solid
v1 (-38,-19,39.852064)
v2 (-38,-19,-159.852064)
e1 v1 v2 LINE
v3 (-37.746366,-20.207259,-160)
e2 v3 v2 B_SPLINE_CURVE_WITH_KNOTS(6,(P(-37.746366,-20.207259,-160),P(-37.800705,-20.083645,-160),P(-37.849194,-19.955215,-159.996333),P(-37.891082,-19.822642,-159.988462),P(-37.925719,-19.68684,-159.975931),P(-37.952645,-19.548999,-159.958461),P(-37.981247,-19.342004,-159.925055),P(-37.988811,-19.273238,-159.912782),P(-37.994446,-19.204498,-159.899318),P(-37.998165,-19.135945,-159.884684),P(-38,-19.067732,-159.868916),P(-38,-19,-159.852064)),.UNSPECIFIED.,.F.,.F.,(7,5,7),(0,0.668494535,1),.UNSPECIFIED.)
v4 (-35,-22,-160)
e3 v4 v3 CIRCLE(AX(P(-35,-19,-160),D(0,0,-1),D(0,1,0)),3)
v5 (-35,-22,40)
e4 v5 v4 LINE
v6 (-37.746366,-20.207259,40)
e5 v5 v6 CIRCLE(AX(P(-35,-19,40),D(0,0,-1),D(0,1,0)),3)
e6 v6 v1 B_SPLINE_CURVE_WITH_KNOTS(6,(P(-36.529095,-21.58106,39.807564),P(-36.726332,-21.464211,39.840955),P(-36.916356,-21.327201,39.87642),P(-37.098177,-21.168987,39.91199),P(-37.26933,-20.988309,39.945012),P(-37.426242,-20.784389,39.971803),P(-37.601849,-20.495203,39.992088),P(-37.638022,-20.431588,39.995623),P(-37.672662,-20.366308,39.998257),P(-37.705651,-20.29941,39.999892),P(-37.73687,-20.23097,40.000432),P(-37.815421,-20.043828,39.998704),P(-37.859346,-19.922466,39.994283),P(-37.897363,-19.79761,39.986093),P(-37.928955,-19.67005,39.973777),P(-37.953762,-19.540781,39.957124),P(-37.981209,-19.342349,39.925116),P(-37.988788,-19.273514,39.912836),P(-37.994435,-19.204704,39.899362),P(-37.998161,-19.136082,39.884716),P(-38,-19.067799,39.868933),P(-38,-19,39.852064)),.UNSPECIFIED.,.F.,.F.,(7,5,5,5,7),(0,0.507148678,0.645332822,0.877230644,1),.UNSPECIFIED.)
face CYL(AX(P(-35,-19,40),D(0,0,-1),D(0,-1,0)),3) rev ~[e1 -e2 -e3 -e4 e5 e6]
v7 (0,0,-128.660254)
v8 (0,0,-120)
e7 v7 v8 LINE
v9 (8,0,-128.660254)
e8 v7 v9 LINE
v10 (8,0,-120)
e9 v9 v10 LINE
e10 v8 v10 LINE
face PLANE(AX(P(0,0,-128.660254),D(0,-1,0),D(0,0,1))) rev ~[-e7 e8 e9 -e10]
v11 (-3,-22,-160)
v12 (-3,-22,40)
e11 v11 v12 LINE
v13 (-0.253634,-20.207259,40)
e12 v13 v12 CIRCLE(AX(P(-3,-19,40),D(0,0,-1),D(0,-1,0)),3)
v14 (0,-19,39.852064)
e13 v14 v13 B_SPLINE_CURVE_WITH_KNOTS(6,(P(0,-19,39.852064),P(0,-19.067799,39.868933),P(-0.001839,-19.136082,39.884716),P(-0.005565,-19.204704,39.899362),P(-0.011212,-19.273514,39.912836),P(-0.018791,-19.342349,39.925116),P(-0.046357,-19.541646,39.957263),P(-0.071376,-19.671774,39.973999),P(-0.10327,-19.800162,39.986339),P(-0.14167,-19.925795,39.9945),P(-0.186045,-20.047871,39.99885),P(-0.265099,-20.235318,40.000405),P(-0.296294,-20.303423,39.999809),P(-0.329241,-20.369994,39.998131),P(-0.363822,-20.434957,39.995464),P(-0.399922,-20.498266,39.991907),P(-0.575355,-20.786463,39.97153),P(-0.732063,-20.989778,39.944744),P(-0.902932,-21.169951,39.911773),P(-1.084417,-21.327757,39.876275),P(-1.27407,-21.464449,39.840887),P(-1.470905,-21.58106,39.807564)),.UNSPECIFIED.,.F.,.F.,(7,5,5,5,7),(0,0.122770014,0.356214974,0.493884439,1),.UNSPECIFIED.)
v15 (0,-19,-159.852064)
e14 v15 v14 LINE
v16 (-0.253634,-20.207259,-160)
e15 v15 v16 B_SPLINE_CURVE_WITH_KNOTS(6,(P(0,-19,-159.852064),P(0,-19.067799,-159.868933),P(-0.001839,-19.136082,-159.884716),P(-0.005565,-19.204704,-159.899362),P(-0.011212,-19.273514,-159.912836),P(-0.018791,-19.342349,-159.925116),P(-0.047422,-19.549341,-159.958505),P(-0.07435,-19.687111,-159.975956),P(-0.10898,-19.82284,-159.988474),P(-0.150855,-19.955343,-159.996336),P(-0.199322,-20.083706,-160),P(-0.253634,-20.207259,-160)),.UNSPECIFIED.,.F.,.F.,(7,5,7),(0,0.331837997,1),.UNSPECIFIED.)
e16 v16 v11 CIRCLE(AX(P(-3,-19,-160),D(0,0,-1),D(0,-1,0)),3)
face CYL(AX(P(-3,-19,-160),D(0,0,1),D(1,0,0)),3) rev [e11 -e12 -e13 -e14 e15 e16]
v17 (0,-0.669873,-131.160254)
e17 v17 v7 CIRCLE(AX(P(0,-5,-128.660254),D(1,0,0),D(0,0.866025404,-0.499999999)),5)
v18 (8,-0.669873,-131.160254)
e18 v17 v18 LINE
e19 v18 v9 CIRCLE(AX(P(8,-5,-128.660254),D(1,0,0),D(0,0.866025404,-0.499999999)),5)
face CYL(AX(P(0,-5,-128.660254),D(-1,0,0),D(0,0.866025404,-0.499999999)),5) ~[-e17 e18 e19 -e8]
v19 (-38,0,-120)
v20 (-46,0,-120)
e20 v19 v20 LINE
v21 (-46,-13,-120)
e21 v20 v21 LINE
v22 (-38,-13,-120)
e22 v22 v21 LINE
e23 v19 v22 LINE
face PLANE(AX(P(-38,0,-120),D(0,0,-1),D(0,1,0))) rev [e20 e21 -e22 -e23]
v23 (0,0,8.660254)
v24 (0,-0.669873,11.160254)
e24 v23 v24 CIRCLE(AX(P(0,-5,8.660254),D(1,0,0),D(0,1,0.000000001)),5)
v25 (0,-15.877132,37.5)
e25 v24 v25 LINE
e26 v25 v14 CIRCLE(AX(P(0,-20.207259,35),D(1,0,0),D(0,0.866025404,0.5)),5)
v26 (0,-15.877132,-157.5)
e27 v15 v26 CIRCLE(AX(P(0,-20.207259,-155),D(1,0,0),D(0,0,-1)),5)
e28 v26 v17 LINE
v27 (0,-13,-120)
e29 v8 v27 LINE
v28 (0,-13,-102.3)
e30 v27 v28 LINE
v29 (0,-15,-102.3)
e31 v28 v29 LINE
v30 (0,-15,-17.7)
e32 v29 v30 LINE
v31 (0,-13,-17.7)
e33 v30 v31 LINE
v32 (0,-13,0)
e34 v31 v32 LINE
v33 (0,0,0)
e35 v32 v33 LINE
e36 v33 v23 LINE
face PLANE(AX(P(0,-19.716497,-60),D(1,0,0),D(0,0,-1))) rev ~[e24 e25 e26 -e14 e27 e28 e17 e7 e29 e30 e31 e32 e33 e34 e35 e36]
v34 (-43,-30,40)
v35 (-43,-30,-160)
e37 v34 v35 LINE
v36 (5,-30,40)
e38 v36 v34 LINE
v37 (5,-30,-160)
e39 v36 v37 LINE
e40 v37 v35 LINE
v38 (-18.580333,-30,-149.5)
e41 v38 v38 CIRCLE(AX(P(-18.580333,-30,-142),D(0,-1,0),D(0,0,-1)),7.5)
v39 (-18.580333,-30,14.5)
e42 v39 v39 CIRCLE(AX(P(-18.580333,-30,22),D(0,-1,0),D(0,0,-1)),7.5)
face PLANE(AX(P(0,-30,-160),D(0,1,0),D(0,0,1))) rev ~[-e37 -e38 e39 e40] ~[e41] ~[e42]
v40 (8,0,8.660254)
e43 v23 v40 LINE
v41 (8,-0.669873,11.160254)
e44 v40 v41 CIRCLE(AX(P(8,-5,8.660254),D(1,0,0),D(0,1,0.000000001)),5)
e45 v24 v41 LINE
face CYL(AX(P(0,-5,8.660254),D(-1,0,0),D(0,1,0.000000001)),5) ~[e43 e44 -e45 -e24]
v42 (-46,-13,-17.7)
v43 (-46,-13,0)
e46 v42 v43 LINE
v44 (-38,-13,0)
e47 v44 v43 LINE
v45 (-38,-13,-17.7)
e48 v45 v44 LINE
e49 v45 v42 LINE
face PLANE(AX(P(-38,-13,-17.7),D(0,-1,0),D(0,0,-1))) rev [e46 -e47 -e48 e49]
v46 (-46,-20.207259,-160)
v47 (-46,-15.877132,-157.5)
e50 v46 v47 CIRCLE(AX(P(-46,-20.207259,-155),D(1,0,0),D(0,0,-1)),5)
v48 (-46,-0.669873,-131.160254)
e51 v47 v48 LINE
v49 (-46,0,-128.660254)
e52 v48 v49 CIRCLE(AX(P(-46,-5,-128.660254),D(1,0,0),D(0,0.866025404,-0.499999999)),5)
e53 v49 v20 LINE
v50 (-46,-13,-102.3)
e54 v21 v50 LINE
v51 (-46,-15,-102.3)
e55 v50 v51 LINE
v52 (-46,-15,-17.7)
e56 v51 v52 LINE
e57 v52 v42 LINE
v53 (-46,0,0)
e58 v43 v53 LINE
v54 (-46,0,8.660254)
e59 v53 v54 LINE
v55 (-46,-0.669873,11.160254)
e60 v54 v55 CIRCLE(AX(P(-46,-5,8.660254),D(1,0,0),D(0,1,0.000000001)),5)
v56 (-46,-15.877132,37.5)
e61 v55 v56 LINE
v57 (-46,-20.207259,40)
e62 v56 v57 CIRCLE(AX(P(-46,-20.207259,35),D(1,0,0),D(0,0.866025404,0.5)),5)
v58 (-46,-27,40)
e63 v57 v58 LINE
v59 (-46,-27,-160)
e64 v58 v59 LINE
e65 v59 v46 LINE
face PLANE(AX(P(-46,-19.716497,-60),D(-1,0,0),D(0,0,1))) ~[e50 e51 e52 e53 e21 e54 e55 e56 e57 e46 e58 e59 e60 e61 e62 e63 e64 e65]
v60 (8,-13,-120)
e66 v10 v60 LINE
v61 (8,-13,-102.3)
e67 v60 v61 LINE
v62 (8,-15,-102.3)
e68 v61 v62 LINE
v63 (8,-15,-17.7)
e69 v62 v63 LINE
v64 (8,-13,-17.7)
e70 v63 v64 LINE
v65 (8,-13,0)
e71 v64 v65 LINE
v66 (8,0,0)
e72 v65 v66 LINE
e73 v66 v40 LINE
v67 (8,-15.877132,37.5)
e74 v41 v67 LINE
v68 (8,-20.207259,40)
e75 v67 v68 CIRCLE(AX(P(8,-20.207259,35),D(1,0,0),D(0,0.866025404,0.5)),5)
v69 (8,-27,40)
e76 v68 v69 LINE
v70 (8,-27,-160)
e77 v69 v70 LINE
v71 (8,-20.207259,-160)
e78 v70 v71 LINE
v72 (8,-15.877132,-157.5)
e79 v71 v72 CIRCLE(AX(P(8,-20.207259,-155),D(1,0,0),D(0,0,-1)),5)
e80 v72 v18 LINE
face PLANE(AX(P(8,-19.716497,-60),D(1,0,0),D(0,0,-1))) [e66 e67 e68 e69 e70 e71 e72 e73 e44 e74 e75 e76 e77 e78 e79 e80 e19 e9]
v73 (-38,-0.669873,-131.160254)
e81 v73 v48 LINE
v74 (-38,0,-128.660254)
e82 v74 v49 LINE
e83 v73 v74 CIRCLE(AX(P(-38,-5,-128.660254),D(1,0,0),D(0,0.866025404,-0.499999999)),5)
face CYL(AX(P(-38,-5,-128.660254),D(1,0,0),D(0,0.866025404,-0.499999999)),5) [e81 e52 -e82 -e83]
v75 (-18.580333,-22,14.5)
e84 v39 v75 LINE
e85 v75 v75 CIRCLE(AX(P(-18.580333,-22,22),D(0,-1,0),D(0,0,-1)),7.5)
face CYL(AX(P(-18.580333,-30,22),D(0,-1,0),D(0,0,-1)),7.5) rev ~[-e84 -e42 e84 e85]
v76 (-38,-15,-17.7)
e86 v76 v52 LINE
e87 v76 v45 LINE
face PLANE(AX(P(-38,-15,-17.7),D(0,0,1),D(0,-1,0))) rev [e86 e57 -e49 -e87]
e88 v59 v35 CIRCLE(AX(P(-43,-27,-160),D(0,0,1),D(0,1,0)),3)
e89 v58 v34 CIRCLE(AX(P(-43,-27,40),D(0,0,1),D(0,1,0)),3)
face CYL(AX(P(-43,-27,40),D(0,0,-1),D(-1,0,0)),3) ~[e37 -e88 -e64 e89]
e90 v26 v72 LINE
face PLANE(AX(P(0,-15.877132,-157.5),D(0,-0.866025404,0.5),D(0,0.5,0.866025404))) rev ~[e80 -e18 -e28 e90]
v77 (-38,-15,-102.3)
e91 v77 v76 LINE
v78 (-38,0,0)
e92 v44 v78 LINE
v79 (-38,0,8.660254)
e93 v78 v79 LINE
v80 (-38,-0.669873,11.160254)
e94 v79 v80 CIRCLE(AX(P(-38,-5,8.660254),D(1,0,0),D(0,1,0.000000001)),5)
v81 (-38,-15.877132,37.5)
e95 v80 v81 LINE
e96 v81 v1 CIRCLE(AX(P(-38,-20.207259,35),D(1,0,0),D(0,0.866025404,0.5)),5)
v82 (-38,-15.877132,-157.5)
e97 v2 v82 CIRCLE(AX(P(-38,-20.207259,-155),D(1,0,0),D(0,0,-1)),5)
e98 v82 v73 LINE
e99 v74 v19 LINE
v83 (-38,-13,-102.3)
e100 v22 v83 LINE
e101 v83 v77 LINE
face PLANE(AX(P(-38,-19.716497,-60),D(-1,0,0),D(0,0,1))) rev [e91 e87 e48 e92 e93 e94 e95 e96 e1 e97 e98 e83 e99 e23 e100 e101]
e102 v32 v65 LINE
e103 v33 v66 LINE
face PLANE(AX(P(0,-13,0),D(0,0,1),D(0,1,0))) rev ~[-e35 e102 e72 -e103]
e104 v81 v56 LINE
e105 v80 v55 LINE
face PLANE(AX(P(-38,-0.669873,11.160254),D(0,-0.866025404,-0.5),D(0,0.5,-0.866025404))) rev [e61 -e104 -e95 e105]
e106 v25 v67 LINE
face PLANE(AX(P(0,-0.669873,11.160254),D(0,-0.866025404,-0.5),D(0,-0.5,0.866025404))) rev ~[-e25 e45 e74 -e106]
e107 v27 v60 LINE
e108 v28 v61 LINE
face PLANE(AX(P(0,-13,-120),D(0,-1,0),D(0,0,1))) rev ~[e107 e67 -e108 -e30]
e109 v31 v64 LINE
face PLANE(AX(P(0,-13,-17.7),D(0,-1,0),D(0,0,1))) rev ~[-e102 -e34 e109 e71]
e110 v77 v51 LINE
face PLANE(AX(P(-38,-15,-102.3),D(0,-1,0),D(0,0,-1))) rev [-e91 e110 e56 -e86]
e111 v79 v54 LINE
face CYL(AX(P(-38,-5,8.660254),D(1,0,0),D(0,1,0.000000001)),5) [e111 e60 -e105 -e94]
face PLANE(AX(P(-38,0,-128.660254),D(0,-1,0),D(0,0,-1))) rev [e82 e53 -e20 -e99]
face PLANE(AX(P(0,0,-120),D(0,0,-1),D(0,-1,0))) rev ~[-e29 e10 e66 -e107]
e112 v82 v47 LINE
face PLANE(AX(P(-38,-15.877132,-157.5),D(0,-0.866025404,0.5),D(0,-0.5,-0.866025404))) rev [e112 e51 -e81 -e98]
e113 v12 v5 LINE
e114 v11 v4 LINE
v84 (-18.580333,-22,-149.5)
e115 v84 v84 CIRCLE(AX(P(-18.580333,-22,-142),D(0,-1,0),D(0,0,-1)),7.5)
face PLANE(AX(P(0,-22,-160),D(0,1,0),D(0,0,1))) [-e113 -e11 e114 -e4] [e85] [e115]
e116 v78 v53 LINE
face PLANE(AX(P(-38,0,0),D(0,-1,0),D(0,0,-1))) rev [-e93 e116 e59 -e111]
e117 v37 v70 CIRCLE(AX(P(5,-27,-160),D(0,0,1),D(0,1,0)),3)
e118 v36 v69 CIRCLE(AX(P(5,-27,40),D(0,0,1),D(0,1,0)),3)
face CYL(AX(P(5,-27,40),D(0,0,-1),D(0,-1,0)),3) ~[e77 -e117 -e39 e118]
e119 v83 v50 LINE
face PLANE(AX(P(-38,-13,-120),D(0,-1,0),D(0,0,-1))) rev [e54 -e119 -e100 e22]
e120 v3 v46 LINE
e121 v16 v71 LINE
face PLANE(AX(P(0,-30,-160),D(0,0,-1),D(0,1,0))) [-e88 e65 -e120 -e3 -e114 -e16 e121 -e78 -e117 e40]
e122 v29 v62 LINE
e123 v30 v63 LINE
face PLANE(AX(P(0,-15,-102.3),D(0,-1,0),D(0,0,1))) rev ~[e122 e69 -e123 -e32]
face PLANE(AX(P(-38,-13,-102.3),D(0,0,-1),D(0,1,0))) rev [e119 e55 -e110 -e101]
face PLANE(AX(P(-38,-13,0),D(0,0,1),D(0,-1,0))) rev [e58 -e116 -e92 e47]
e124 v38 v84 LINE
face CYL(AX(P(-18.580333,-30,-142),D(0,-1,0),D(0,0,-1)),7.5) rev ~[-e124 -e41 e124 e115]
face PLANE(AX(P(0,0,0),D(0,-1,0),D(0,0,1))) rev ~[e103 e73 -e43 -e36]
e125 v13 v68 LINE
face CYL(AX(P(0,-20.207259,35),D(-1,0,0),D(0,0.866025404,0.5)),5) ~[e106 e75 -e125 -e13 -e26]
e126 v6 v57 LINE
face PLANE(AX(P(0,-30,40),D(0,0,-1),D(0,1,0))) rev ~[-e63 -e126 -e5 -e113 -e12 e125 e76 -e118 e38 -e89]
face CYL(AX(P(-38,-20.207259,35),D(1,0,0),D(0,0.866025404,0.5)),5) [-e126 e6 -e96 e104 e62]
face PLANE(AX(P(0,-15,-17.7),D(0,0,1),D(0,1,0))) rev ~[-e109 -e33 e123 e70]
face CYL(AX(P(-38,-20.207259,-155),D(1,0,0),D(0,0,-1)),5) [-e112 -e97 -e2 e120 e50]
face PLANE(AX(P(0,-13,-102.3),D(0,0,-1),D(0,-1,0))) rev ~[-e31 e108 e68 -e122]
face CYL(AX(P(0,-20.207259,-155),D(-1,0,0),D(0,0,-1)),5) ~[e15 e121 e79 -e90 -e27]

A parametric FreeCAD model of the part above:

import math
import FreeCAD as App
import Part
import Sketcher

V = App.Vector
Q = App.Units.Quantity


def edges_at(feature, points):
    """Names of the edges that pass closest to the given points."""
    edges = feature.Shape.Edges
    near = lambda p: min(range(len(edges)), key=lambda i: edges[i].distToShape(Part.Vertex(*p))[0])
    return sorted({f"Edge{near(p) + 1}" for p in points})

doc = App.newDocument("Part")
body = doc.addObject("PartDesign::Body", "Body")

sketch1 = body.newObject("Sketcher::SketchObject", "Sketch")
sketch1.AttachmentSupport = (doc.getObject("YZ_Plane"), [""])
sketch1.MapMode = "FlatFace"
sketch1.addGeometry([
    Part.LineSegment(V(0, 0, 0), V(0, 8.7, 0)),
    Part.ArcOfCircle(Part.Circle(V(-5, 8.7, 0), V(0, 0, 1), 5), math.radians(0), math.radians(30)),
    Part.LineSegment(V(-0.7, 11.2, 0), V(-15.9, 37.5, 0)),
    Part.ArcOfCircle(Part.Circle(V(-20.2, 35, 0), V(0, 0, 1), 5), math.radians(30), math.radians(90)),
    Part.LineSegment(V(-20.2, 40, 0), V(-30, 40, 0)),
    Part.LineSegment(V(-30, 40, 0), V(-30, -160, 0)),
    Part.LineSegment(V(-30, -160, 0), V(-20.2, -160, 0)),
    Part.ArcOfCircle(Part.Circle(V(-20.2, -155, 0), V(0, 0, 1), 5), math.radians(-90), math.radians(-30)),
    Part.LineSegment(V(-15.9, -157.5, 0), V(-0.7, -131.2, 0)),
    Part.ArcOfCircle(Part.Circle(V(-5, -128.7, 0), V(0, 0, 1), 5), math.radians(-30), math.radians(0)),
    Part.LineSegment(V(0, -128.7, 0), V(0, -120, 0)),
    Part.LineSegment(V(0, -120, 0), V(-13, -120, 0)),
    Part.LineSegment(V(-13, -120, 0), V(-13, -102.3, 0)),
    Part.LineSegment(V(-13, -102.3, 0), V(-15, -102.3, 0)),
    Part.LineSegment(V(-15, -102.3, 0), V(-15, -17.7, 0)),
    Part.LineSegment(V(-15, -17.7, 0), V(-13, -17.7, 0)),
    Part.LineSegment(V(-13, -17.7, 0), V(-13, 0, 0)),
    Part.LineSegment(V(-13, 0, 0), V(0, 0, 0)),
], False)
sketch1.addConstraint([
    Sketcher.Constraint("Tangent", 0, 2, 1, 1),
    Sketcher.Constraint("Tangent", 1, 2, 2, 1),
    Sketcher.Constraint("Tangent", 2, 2, 3, 1),
    Sketcher.Constraint("Tangent", 3, 2, 4, 1),
    Sketcher.Constraint("Coincident", 4, 2, 5, 1),
    Sketcher.Constraint("Coincident", 5, 2, 6, 1),
    Sketcher.Constraint("Tangent", 6, 2, 7, 1),
    Sketcher.Constraint("Tangent", 7, 2, 8, 1),
    Sketcher.Constraint("Tangent", 8, 2, 9, 1),
    Sketcher.Constraint("Tangent", 9, 2, 10, 1),
    Sketcher.Constraint("Coincident", 10, 2, 11, 1),
    Sketcher.Constraint("Coincident", 11, 2, 12, 1),
    Sketcher.Constraint("Coincident", 12, 2, 13, 1),
    Sketcher.Constraint("Coincident", 13, 2, 14, 1),
    Sketcher.Constraint("Coincident", 14, 2, 15, 1),
    Sketcher.Constraint("Coincident", 15, 2, 16, 1),
    Sketcher.Constraint("Coincident", 16, 2, 17, 1),
    Sketcher.Constraint("Coincident", 17, 2, 0, 1),
    Sketcher.Constraint("Vertical", 0),
    Sketcher.Constraint("Horizontal", 4),
    Sketcher.Constraint("Vertical", 5),
    Sketcher.Constraint("Horizontal", 6),
    Sketcher.Constraint("Vertical", 10),
    Sketcher.Constraint("Horizontal", 11),
    Sketcher.Constraint("Vertical", 12),
    Sketcher.Constraint("Horizontal", 13),
    Sketcher.Constraint("Vertical", 14),
    Sketcher.Constraint("Horizontal", 15),
    Sketcher.Constraint("Vertical", 16),
    Sketcher.Constraint("Horizontal", 17),
    Sketcher.Constraint("Coincident", 17, 2, -1, 1),
    Sketcher.Constraint("Equal", 1, 3),
    Sketcher.Constraint("Equal", 3, 7),
    Sketcher.Constraint("Equal", 7, 9),
    Sketcher.Constraint("PointOnObject", 9, 2, -2),
    Sketcher.Constraint("Vertical", 3, 3, 7, 3),
    Sketcher.Constraint("Vertical", 2, 2, 7, 2),
    Sketcher.Constraint("Vertical", 12, 2, 15, 2),
    Sketcher.Constraint("Equal", 0, 10),
    Sketcher.Constraint("Equal", 12, 16),
    Sketcher.Constraint("Radius", 1, 5.0),
    Sketcher.Constraint("DistanceX", 11, 2, 11, 1, 13.0),
    Sketcher.Constraint("DistanceX", 13, 2, 13, 1, 2.0),
    Sketcher.Constraint("DistanceY", 5, 2, 5, 1, 200.0),
    Sketcher.Constraint("Angle", 2, Q("120 deg")),
    Sketcher.Constraint("DistanceY", 12, 1, 12, 2, 17.7),
    Sketcher.Constraint("DistanceY", 14, 1, 14, 2, 84.6),
    Sketcher.Constraint("DistanceX", 4, 2, -1, 1, 30.0),
    Sketcher.Constraint("DistanceX", 4, 2, 4, 1, 9.792741),
])
pad1 = body.newObject("PartDesign::Pad", "Pad")
pad1.Profile = sketch1
pad1.Length = 8
body2 = doc.addObject("PartDesign::Body", "Body001")
body2.AllowCompound = True
doc.recompute()

mirroring = doc.addObject("Part::Mirroring", "Mirroring")
mirroring.Source = body
mirroring.Base = V(-19, 0, 0)
mirroring.Normal = V(-1, 0, 0)
body2.BaseFeature = mirroring
doc.recompute()

boolean = body2.newObject("PartDesign::Boolean", "Boolean")
boolean.Type = "Fuse"
boolean.addObjects([body])

sketch2 = body2.newObject("Sketcher::SketchObject", "Sketch001")
sketch2.AttachmentSupport = (doc.getObject("YZ_Plane001"), [""])
sketch2.MapMode = "FlatFace"
sketch2.addGeometry([
    Part.LineSegment(V(-22, -160, 0), V(-30, -160, 0)),
    Part.LineSegment(V(-30, -160, 0), V(-30, 40, 0)),
    Part.LineSegment(V(-30, 40, 0), V(-22, 40, 0)),
    Part.LineSegment(V(-22, 40, 0), V(-22, -160, 0)),
], False)
sketch2.addConstraint([
    Sketcher.Constraint("Coincident", 0, 2, 1, 1),
    Sketcher.Constraint("Coincident", 1, 2, 2, 1),
    Sketcher.Constraint("Coincident", 2, 2, 3, 1),
    Sketcher.Constraint("Coincident", 3, 2, 0, 1),
    Sketcher.Constraint("Horizontal", 0),
    Sketcher.Constraint("Vertical", 1),
    Sketcher.Constraint("Horizontal", 2),
    Sketcher.Constraint("Vertical", 3),
    Sketcher.Constraint("DistanceX", 0, 2, 0, 1, 8.0),
    Sketcher.Constraint("DistanceY", 1, 1, 1, 2, 200.0),
    Sketcher.Constraint("DistanceX", 0, 2, -1, 1, 30.0),
    Sketcher.Constraint("DistanceY", 0, 2, -1, 1, 160.0),
])
pad2 = body2.newObject("PartDesign::Pad", "Pad001")
pad2.Profile = sketch2
pad2.Type = "UpToFirst"
pad2.Reversed = True
doc.recompute()

fillet = body2.newObject("PartDesign::Fillet", "Fillet")
fillet.Base = (pad2, edges_at(pad2, [(8, -30, -60), (-46, -30, -60)]))
fillet.Radius = 3
doc.recompute()

fillet2 = body2.newObject("PartDesign::Fillet", "Fillet001")
fillet2.Base = (fillet, edges_at(fillet, [(0, -22, -60), (-38, -22, -60)]))
fillet2.Radius = 3

sketch3 = body2.newObject("Sketcher::SketchObject", "Sketch002")
sketch3.AttachmentSupport = (doc.getObject("XZ_Plane001"), [""])
sketch3.MapMode = "FlatFace"
sketch3.AttachmentOffset = App.Placement(V(0, 0, 30), App.Rotation())
sketch3.addGeometry([
    Part.Circle(V(-19, 22, 0), V(0, 0, 1), 8),
    Part.Circle(V(-19, -142, 0), V(0, 0, 1), 8),
], False)
sketch3.addConstraint([
    Sketcher.Constraint("Equal", 0, 1),
    Sketcher.Constraint("Vertical", 0, 3, 1, 3),
    Sketcher.Constraint("Diameter", 0, 15.0),
    Sketcher.Constraint("DistanceY", -1, 1, 0, 3, 22.0),
    Sketcher.Constraint("DistanceY", 1, 3, -1, 1, 142.0),
    Sketcher.Constraint("DistanceX", 0, 3, -1, 1, 18.580333),
])
pocket1 = body2.newObject("PartDesign::Pocket", "Pocket")
pocket1.Profile = sketch3
pocket1.Type = "ThroughAll"
mirroring.Visibility = False

doc.recompute()
